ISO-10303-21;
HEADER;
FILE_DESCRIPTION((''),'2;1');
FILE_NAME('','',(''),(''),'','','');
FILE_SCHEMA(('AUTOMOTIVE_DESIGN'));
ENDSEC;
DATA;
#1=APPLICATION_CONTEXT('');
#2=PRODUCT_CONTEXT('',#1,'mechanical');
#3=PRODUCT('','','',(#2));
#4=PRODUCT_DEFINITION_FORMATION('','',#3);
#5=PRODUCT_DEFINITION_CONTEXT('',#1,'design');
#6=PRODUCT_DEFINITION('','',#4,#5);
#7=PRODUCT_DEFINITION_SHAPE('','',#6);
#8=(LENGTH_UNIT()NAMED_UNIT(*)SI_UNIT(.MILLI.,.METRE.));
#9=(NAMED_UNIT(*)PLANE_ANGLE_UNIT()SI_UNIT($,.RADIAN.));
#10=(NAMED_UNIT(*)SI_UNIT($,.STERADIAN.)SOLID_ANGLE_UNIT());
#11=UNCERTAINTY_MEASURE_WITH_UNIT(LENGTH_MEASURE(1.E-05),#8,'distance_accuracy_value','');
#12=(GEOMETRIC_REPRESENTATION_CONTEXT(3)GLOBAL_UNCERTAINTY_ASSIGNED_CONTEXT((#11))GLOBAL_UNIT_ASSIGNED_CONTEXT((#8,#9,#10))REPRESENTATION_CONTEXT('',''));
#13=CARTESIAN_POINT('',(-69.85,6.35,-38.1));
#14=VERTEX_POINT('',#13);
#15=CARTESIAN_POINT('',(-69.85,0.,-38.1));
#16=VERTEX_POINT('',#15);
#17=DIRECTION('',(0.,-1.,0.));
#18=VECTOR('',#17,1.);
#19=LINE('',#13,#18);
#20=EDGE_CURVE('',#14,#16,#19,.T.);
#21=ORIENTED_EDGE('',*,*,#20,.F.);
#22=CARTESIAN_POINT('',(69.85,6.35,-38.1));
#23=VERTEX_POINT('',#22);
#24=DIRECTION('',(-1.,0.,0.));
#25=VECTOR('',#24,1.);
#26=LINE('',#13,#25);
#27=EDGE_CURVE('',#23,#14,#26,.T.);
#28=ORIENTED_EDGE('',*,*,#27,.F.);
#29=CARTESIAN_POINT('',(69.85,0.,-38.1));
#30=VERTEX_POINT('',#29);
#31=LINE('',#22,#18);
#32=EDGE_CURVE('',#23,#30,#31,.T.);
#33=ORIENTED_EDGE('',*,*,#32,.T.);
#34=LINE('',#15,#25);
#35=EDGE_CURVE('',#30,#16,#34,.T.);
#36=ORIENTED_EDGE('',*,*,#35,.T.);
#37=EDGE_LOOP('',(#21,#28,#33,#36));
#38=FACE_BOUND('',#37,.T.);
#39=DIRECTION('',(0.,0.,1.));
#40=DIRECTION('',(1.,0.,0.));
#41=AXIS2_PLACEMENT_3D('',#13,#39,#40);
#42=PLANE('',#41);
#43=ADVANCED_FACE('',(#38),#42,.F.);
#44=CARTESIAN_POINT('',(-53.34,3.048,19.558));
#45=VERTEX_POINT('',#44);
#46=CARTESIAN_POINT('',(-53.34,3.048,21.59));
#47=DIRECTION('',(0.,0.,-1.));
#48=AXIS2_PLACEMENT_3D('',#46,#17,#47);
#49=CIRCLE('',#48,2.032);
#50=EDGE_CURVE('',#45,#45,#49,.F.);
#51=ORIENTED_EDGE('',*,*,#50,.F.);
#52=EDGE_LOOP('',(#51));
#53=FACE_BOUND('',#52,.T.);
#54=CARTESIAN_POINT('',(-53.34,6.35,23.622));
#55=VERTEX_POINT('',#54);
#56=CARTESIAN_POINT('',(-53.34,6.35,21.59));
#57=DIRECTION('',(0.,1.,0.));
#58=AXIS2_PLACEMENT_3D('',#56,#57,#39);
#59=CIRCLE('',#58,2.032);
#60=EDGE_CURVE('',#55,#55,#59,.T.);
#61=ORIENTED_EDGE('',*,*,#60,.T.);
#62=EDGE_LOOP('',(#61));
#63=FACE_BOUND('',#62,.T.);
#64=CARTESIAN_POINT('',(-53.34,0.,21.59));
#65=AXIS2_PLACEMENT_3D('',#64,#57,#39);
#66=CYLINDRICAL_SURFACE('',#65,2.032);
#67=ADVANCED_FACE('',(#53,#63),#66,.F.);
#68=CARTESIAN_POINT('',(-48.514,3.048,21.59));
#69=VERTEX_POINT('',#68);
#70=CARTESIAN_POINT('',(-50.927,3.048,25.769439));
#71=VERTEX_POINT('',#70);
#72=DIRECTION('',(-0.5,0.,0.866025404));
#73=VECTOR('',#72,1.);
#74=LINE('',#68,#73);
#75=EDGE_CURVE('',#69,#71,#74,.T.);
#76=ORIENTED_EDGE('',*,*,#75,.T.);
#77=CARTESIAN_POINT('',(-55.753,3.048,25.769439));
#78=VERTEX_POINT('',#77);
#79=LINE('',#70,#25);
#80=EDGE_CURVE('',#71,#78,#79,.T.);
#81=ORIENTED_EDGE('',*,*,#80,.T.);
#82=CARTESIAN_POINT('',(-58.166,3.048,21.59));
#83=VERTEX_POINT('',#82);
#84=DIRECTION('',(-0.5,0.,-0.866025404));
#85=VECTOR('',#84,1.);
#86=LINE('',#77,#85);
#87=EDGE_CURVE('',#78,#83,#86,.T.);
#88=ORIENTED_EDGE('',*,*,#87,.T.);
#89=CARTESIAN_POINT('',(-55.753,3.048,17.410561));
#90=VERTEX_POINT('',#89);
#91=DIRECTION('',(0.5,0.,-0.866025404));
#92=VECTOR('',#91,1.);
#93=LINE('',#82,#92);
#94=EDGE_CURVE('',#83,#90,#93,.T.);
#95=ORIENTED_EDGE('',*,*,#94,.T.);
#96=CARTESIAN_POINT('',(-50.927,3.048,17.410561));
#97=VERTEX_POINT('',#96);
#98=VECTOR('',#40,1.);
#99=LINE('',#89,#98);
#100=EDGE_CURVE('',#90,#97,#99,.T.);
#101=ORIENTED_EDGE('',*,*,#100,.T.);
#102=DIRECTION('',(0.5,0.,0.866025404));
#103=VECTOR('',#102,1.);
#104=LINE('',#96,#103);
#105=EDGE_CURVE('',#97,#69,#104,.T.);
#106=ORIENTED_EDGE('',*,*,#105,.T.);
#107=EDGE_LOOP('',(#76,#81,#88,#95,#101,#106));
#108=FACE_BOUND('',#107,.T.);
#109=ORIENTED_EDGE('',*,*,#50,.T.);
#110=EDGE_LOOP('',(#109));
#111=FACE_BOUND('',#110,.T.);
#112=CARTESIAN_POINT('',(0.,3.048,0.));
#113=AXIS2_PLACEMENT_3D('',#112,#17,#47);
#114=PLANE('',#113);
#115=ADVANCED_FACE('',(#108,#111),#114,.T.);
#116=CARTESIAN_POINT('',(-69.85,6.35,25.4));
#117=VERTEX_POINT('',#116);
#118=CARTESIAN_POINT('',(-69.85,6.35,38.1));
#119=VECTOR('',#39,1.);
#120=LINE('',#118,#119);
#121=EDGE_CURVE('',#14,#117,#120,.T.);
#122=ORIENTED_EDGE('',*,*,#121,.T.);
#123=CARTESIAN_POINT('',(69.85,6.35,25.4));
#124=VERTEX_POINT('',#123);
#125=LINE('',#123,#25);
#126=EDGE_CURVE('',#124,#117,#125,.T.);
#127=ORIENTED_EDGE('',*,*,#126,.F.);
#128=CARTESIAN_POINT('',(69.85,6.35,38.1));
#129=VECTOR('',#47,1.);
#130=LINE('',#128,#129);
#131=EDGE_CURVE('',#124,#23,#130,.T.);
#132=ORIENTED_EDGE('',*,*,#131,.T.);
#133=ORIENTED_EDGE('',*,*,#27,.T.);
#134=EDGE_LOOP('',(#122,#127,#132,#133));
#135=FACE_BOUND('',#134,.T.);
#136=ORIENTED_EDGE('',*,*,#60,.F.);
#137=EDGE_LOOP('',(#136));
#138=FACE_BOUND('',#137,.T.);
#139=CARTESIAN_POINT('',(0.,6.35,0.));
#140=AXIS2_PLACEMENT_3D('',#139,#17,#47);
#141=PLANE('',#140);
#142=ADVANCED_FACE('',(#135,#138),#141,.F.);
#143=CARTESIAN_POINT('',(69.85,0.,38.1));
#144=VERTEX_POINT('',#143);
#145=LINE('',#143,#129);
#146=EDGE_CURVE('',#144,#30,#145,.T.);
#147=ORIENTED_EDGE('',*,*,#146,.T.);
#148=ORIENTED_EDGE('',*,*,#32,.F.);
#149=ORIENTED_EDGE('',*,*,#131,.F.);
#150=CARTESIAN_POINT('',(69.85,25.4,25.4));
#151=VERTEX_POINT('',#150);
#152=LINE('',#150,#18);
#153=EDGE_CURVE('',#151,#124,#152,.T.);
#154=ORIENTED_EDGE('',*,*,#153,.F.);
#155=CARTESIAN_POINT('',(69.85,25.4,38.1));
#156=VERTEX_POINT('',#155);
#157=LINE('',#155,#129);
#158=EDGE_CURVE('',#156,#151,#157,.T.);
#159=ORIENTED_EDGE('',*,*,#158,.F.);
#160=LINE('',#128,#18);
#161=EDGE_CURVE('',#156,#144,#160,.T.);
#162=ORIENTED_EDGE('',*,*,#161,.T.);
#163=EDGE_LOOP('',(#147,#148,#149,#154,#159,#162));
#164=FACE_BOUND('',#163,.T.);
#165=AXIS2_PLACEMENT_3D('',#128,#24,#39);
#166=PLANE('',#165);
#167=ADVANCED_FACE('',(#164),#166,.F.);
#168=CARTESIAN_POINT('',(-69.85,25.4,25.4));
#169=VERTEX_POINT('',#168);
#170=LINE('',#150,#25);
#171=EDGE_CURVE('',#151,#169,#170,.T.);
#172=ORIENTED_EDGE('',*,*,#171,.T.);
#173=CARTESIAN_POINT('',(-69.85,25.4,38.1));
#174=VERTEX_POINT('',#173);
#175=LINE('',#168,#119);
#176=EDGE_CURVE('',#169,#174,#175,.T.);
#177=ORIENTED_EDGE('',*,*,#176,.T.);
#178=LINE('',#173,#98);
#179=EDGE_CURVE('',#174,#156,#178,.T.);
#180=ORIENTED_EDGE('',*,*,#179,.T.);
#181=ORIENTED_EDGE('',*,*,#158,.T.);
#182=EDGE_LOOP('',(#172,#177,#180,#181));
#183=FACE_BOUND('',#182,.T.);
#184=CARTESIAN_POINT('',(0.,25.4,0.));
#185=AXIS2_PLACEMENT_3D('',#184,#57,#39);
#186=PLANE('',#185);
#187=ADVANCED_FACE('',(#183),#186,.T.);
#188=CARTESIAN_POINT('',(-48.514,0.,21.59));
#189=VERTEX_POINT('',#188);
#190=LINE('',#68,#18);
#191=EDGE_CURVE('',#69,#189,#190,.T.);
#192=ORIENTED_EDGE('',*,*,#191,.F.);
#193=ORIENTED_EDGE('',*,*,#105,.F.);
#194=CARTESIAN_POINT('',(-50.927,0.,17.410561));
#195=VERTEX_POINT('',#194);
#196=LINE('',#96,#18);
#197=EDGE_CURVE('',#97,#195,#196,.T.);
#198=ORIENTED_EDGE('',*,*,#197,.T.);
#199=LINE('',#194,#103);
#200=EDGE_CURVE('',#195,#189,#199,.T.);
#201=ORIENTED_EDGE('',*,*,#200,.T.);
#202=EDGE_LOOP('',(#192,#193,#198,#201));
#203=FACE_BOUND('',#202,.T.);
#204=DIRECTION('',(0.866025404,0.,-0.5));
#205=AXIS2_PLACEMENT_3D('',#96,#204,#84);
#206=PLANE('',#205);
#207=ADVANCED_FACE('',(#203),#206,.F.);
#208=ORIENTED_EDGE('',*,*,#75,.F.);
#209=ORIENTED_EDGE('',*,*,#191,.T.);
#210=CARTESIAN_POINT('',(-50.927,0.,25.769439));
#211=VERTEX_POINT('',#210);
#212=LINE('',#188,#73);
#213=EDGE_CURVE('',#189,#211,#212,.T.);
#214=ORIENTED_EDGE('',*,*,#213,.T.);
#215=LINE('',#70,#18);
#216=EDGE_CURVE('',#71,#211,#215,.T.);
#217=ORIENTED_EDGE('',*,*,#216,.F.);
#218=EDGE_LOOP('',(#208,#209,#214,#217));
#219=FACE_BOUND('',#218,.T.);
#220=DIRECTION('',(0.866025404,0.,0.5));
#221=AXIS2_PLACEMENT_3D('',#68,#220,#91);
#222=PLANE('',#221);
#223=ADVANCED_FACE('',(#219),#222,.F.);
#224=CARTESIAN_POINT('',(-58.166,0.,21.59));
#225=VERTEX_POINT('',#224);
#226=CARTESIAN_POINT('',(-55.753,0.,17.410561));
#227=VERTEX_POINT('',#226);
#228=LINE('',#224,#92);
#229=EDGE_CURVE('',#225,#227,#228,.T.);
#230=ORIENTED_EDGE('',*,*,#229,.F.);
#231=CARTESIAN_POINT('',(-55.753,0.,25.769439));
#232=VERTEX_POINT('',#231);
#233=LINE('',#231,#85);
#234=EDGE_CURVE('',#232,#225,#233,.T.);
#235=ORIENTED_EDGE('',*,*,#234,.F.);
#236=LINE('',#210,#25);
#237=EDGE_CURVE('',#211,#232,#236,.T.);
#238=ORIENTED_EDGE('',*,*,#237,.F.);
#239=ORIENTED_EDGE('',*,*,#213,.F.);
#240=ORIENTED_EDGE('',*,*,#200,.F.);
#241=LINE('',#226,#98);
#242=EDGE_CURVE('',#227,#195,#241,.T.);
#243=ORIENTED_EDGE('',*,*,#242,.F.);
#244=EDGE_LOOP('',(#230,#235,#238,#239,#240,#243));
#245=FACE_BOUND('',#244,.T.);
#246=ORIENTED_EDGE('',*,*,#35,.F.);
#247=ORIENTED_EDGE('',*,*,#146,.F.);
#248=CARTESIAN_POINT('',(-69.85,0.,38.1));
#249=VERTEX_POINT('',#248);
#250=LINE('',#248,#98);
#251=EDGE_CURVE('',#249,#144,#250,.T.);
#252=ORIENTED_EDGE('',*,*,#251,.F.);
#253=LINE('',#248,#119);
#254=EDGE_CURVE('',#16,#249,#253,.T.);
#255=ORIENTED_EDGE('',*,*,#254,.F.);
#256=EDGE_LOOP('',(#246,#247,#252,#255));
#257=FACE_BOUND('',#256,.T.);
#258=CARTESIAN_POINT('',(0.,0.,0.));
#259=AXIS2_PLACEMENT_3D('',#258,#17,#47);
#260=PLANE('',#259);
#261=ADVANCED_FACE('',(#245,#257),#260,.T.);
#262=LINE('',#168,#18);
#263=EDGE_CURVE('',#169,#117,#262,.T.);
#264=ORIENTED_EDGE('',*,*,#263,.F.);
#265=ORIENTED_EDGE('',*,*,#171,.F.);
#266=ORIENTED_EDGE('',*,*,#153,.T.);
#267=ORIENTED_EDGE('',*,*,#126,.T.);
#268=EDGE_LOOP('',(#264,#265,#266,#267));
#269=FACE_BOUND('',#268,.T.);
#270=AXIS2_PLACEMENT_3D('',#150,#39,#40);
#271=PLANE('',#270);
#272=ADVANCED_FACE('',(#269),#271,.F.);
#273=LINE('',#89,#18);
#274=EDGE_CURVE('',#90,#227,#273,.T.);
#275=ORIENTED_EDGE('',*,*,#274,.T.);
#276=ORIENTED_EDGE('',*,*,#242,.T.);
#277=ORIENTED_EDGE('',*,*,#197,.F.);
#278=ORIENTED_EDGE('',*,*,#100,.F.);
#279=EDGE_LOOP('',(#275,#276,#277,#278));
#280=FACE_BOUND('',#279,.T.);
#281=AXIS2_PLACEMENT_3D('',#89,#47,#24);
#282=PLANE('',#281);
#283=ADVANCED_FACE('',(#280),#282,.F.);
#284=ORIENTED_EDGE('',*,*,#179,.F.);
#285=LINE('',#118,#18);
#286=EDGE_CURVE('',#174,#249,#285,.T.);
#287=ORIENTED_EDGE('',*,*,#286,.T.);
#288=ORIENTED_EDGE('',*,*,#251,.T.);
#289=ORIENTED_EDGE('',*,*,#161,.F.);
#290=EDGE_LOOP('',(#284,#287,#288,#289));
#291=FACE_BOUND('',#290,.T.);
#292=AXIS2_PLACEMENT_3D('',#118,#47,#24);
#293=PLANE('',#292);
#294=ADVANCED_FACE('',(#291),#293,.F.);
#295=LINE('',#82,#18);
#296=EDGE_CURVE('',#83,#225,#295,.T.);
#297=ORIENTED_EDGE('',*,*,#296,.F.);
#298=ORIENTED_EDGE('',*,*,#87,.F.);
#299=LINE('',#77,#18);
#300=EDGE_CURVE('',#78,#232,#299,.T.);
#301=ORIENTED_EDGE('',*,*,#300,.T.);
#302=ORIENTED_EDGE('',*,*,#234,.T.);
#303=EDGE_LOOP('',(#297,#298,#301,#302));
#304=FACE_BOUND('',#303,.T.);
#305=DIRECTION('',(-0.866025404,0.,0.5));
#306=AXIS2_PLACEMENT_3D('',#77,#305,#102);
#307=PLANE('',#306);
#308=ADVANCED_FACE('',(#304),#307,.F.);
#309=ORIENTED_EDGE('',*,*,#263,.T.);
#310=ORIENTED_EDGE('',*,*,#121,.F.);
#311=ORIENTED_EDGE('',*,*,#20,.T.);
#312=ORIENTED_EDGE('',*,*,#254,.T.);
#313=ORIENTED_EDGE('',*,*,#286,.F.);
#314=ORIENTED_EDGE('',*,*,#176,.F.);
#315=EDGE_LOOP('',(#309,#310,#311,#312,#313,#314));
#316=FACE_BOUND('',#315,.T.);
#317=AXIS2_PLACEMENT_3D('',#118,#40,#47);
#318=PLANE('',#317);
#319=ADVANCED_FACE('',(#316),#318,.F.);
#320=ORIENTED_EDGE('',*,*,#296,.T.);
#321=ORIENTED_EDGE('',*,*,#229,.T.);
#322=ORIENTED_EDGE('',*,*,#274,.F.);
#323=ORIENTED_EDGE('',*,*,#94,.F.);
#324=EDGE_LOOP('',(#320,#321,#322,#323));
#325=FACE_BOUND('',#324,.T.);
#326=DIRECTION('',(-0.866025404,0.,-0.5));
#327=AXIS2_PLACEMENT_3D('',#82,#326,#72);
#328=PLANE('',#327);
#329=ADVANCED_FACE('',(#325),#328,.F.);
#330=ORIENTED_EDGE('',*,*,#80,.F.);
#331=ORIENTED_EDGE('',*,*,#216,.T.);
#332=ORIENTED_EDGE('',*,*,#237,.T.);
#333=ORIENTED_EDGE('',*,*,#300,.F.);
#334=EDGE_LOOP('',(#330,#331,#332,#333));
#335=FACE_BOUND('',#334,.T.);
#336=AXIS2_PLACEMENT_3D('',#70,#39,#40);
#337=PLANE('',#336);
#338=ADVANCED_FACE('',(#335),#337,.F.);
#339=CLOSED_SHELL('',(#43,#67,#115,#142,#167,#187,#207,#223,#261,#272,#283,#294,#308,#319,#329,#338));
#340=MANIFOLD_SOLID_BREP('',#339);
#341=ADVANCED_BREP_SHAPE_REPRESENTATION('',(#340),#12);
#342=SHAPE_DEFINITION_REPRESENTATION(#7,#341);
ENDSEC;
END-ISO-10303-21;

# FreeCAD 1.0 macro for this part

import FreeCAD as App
import Part
import Sketcher
Q = App.Units.Quantity

doc = App.newDocument("Part")
body = doc.addObject("PartDesign::Body", "Body")

# Sketch on XZ plane
sketch1 = body.newObject("Sketcher::SketchObject", "Sketch")
sketch1.AttachmentSupport = (doc.getObject("XZ_Plane"), [""])
sketch1.MapMode = "FlatFace"
sketch1.addGeometry(Part.LineSegment(App.Vector(-70, -38, 0), App.Vector(-70, 38, 0)), False)
sketch1.addGeometry(Part.LineSegment(App.Vector(-70, 38, 0), App.Vector(70, 38, 0)), False)
sketch1.addGeometry(Part.LineSegment(App.Vector(70, 38, 0), App.Vector(70, -38, 0)), False)
sketch1.addGeometry(Part.LineSegment(App.Vector(70, -38, 0), App.Vector(-70, -38, 0)), False)
sketch1.addConstraint(Sketcher.Constraint("Coincident", 0, 2, 1, 1))
sketch1.addConstraint(Sketcher.Constraint("Coincident", 1, 2, 2, 1))
sketch1.addConstraint(Sketcher.Constraint("Coincident", 2, 2, 3, 1))
sketch1.addConstraint(Sketcher.Constraint("Coincident", 3, 2, 0, 1))
sketch1.addConstraint(Sketcher.Constraint("Vertical", 0))
sketch1.addConstraint(Sketcher.Constraint("Horizontal", 1))
sketch1.addConstraint(Sketcher.Constraint("Vertical", 2))
sketch1.addConstraint(Sketcher.Constraint("Horizontal", 3))
sketch1.addConstraint(Sketcher.Constraint("Symmetric", 0, 2, 2, 2, -1, 1))
sketch1.addConstraint(Sketcher.Constraint("DistanceY", 0, 1, 0, 2, Q("3 in")))
sketch1.addConstraint(Sketcher.Constraint("DistanceX", 1, 1, 1, 2, Q("5.5 in")))
pad1 = body.newObject("PartDesign::Pad", "Pad")
pad1.Profile = sketch1
pad1.Length = Q("0.25 in")
pad1.Reversed = True

# Sketch on XZ plane
sketch2 = body.newObject("Sketcher::SketchObject", "Sketch001")
sketch2.AttachmentSupport = (doc.getObject("XZ_Plane"), [""])
sketch2.MapMode = "FlatFace"
sketch2.AttachmentOffset = App.Placement(App.Vector(0, 0, -0.25 * 25.4), App.Rotation())
sketch2.addGeometry(Part.LineSegment(App.Vector(-70, 25, 0), App.Vector(-70, 38, 0)), False)
sketch2.addGeometry(Part.LineSegment(App.Vector(-70, 38, 0), App.Vector(70, 38, 0)), False)
sketch2.addGeometry(Part.LineSegment(App.Vector(70, 38, 0), App.Vector(70, 25, 0)), False)
sketch2.addGeometry(Part.LineSegment(App.Vector(70, 25, 0), App.Vector(-70, 25, 0)), False)
sketch2.addConstraint(Sketcher.Constraint("Coincident", 0, 2, 1, 1))
sketch2.addConstraint(Sketcher.Constraint("Coincident", 1, 2, 2, 1))
sketch2.addConstraint(Sketcher.Constraint("Coincident", 2, 2, 3, 1))
sketch2.addConstraint(Sketcher.Constraint("Coincident", 3, 2, 0, 1))
sketch2.addConstraint(Sketcher.Constraint("Vertical", 0))
sketch2.addConstraint(Sketcher.Constraint("Horizontal", 1))
sketch2.addConstraint(Sketcher.Constraint("Vertical", 2))
sketch2.addConstraint(Sketcher.Constraint("Horizontal", 3))
sketch2.addConstraint(Sketcher.Constraint("DistanceX", 1, 1, 1, 2, Q("5.5 in")))
sketch2.addConstraint(Sketcher.Constraint("DistanceY", 0, 1, 0, 2, Q("0.5 in")))
sketch2.addConstraint(Sketcher.Constraint("DistanceY", -1, 1, 2, 2, Q("1 in")))
sketch2.addConstraint(Sketcher.Constraint("DistanceX", 0, 2, -1, 1, Q("2.75 in")))
pad2 = body.newObject("PartDesign::Pad", "Pad001")
pad2.Profile = sketch2
pad2.Length = Q("0.75 in")
pad2.Reversed = True

# Sketch on XZ plane
sketch3 = body.newObject("Sketcher::SketchObject", "Sketch002")
sketch3.AttachmentSupport = (doc.getObject("XZ_Plane"), [""])
sketch3.MapMode = "FlatFace"
sketch3.AttachmentOffset = App.Placement(App.Vector(0, 0, -0.25 * 25.4), App.Rotation())
sketch3.addGeometry(Part.Circle(App.Vector(-53.3, 21.6, 0), App.Vector(0, 0, 1), 2), False)
sketch3.addConstraint(Sketcher.Constraint("Diameter", 0, Q("0.16 in")))
sketch3.addConstraint(Sketcher.Constraint("DistanceX", 0, 3, -1, 1, Q("2.1 in")))
sketch3.addConstraint(Sketcher.Constraint("DistanceY", -1, 1, 0, 3, Q("0.85 in")))
pocket1 = body.newObject("PartDesign::Pocket", "Pocket")
pocket1.Profile = sketch3
pocket1.Type = "ThroughAll"
pocket1.Reversed = True

# Sketch on XZ plane
sketch4 = body.newObject("Sketcher::SketchObject", "Sketch003")
sketch4.AttachmentSupport = (doc.getObject("XZ_Plane"), [""])
sketch4.MapMode = "FlatFace"
sketch4.addGeometry(Part.LineSegment(App.Vector(-50.9, 25.8, 0), App.Vector(-55.8, 25.8, 0)), False)
sketch4.addGeometry(Part.LineSegment(App.Vector(-55.8, 25.8, 0), App.Vector(-58.2, 21.6, 0)), False)
sketch4.addGeometry(Part.LineSegment(App.Vector(-58.2, 21.6, 0), App.Vector(-55.8, 17.4, 0)), False)
sketch4.addGeometry(Part.LineSegment(App.Vector(-55.8, 17.4, 0), App.Vector(-50.9, 17.4, 0)), False)
sketch4.addGeometry(Part.LineSegment(App.Vector(-50.9, 17.4, 0), App.Vector(-48.5, 21.6, 0)), False)
sketch4.addGeometry(Part.LineSegment(App.Vector(-48.5, 21.6, 0), App.Vector(-50.9, 25.8, 0)), False)
sketch4.addConstraint(Sketcher.Constraint("Coincident", 0, 2, 1, 1))
sketch4.addConstraint(Sketcher.Constraint("Coincident", 1, 2, 2, 1))
sketch4.addConstraint(Sketcher.Constraint("Coincident", 2, 2, 3, 1))
sketch4.addConstraint(Sketcher.Constraint("Coincident", 3, 2, 4, 1))
sketch4.addConstraint(Sketcher.Constraint("Coincident", 4, 2, 5, 1))
sketch4.addConstraint(Sketcher.Constraint("Coincident", 5, 2, 0, 1))
sketch4.addConstraint(Sketcher.Constraint("Horizontal", 0))
sketch4.addConstraint(Sketcher.Constraint("Horizontal", 3))
sketch4.addConstraint(Sketcher.Constraint("Parallel", 1, 4))
sketch4.addConstraint(Sketcher.Constraint("Parallel", 2, 5))
sketch4.addConstraint(Sketcher.Constraint("Horizontal", 1, 2, 4, 2))
sketch4.addConstraint(Sketcher.Constraint("Vertical", 0, 2, 2, 2))
sketch4.addConstraint(Sketcher.Constraint("Vertical", 3, 2, 5, 2))
sketch4.addConstraint(Sketcher.Constraint("Angle", 1, Q("-120 deg")))
sketch4.addConstraint(Sketcher.Constraint("DistanceX", 0, 2, 0, 1, Q("0.19 in")))
sketch4.addConstraint(Sketcher.Constraint("Distance", 1, Q("0.19 in")))
sketch4.addConstraint(Sketcher.Constraint("DistanceX", 1, 2, -1, 1, Q("2.29 in")))
sketch4.addConstraint(Sketcher.Constraint("DistanceY", -1, 1, 1, 2, Q("0.85 in")))
pocket2 = body.newObject("PartDesign::Pocket", "Pocket001")
pocket2.Profile = sketch4
pocket2.Length = Q("0.12 in")

doc.recompute()
